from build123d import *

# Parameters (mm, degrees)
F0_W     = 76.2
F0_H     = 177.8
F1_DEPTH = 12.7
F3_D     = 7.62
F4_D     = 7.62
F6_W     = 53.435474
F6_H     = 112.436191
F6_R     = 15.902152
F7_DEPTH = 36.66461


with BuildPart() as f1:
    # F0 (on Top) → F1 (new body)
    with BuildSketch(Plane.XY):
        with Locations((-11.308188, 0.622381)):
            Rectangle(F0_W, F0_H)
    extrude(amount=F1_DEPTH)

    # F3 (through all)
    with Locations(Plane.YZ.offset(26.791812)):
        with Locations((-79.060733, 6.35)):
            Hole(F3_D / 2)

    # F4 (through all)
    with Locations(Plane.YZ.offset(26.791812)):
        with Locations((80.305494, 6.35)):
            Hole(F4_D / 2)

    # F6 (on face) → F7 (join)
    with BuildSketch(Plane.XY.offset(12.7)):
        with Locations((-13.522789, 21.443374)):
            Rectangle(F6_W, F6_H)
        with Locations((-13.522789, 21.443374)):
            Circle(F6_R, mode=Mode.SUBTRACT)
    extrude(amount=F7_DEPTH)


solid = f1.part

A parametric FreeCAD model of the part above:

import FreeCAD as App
import Part
import Sketcher
from FreeCAD import Vector
Q = App.Units.Quantity

doc = App.newDocument("Part")
params = doc.addObject("Spreadsheet::Sheet", "Params")
for row, (alias, value) in enumerate([
    ("sketch1_width", "3 in"),
    ("sketch1_height", "7 in"),
    ("pad1_length", "0.5 in"),
    ("sketch2_diameter", "0.3 in"),
    ("hole_diameter", "0.3 in"),
    ("sketch3_diameter", "0.3 in"),
    ("hole2_diameter", "0.3 in"),
    ("pad2_length", "36.66461 mm"),
], start=1):
    params.set(f"A{row}", alias)
    params.set(f"B{row}", "=" + value)
    params.setAlias(f"B{row}", alias)

body = doc.addObject("PartDesign::Body", "Body")

# Sketch on XY plane
sketch1 = doc.addObject("Sketcher::SketchObject", "Sketch")
body.addObject(sketch1)
sketch1.AttachmentSupport = (doc.XY_Plane, [""])
sketch1.MapMode = "FlatFace"
sketch1.addGeometry(Part.LineSegment(Vector(-49, 90, 0), Vector(-49, -88, 0)), False)
sketch1.addGeometry(Part.LineSegment(Vector(-49, -88, 0), Vector(27, -88, 0)), False)
sketch1.addGeometry(Part.LineSegment(Vector(27, -88, 0), Vector(27, 90, 0)), False)
sketch1.addGeometry(Part.LineSegment(Vector(27, 90, 0), Vector(-49, 90, 0)), False)
sketch1.addConstraint(Sketcher.Constraint("Coincident", 0, 2, 1, 1))
sketch1.addConstraint(Sketcher.Constraint("Coincident", 1, 2, 2, 1))
sketch1.addConstraint(Sketcher.Constraint("Coincident", 2, 2, 3, 1))
sketch1.addConstraint(Sketcher.Constraint("Coincident", 3, 2, 0, 1))
sketch1.addConstraint(Sketcher.Constraint("Vertical", 0))
sketch1.addConstraint(Sketcher.Constraint("Horizontal", 1))
sketch1.addConstraint(Sketcher.Constraint("Vertical", 2))
sketch1.addConstraint(Sketcher.Constraint("Horizontal", 3))
sketch1.addConstraint(Sketcher.Constraint("DistanceX", 1, 1, 1, 2, Q("3 in")))
sketch1.addConstraint(Sketcher.Constraint("DistanceY", 0, 2, 0, 1, Q("7 in")))
sketch1.addConstraint(Sketcher.Constraint("DistanceX", 0, 2, -1, 1, 49.408188))
sketch1.addConstraint(Sketcher.Constraint("DistanceY", 0, 2, -1, 1, 88.277619))
sketch1.setExpression("Constraints[8]", "Params.sketch1_width")
sketch1.setExpression("Constraints[9]", "Params.sketch1_height")
pad1 = doc.addObject("PartDesign::Pad", "Pad")
body.addObject(pad1)
pad1.Profile = sketch1
pad1.setExpression("Length", "Params.pad1_length")

# Sketch on YZ plane
sketch2 = doc.addObject("Sketcher::SketchObject", "Sketch001")
body.addObject(sketch2)
sketch2.AttachmentSupport = (doc.YZ_Plane, [""])
sketch2.MapMode = "FlatFace"
sketch2.AttachmentOffset = App.Placement(Vector(0, 0, 26.791812), App.Rotation())
sketch2.addGeometry(Part.Circle(Vector(-79.1, 6.3, 0), Vector(0, 0, 1), 3.8), False)
sketch2.addConstraint(Sketcher.Constraint("Diameter", 0, Q("0.3 in")))
sketch2.addConstraint(Sketcher.Constraint("DistanceY", -1, 1, 0, 3, Q("0.25 in")))
sketch2.addConstraint(Sketcher.Constraint("DistanceX", 0, 3, -1, 1, 79.060733))
sketch2.setExpression("Constraints[0]", "Params.sketch2_diameter")
doc.recompute()
hole = doc.addObject("PartDesign::Hole", "Hole")
body.addObject(hole)
hole.Profile = sketch2
hole.ThreadType = "None"
hole.setExpression("Diameter", "Params.hole_diameter")
hole.DepthType = "ThroughAll"

# Sketch on YZ plane
sketch3 = doc.addObject("Sketcher::SketchObject", "Sketch002")
body.addObject(sketch3)
sketch3.AttachmentSupport = (doc.YZ_Plane, [""])
sketch3.MapMode = "FlatFace"
sketch3.AttachmentOffset = App.Placement(Vector(0, 0, 26.791812), App.Rotation())
sketch3.addGeometry(Part.Circle(Vector(80.3, 6.3, 0), Vector(0, 0, 1), 3.8), False)
sketch3.addConstraint(Sketcher.Constraint("Diameter", 0, Q("0.3 in")))
sketch3.addConstraint(Sketcher.Constraint("DistanceY", -1, 1, 0, 3, Q("0.25 in")))
sketch3.addConstraint(Sketcher.Constraint("DistanceX", -1, 1, 0, 3, 80.305494))
sketch3.setExpression("Constraints[0]", "Params.sketch3_diameter")
doc.recompute()
hole2 = doc.addObject("PartDesign::Hole", "Hole001")
body.addObject(hole2)
hole2.Profile = sketch3
hole2.ThreadType = "None"
hole2.setExpression("Diameter", "Params.hole2_diameter")
hole2.DepthType = "ThroughAll"

# Sketch on XY plane
sketch4 = doc.addObject("Sketcher::SketchObject", "Sketch003")
body.addObject(sketch4)
sketch4.AttachmentSupport = (doc.XY_Plane, [""])
sketch4.MapMode = "FlatFace"
sketch4.AttachmentOffset = App.Placement(Vector(0, 0, 0.5 * 25.4), App.Rotation())
sketch4.addGeometry(Part.LineSegment(Vector(-40, 78, 0), Vector(-40, -35, 0)), False)
sketch4.addGeometry(Part.LineSegment(Vector(-40, -35, 0), Vector(13, -35, 0)), False)
sketch4.addGeometry(Part.LineSegment(Vector(13, -35, 0), Vector(13, 78, 0)), False)
sketch4.addGeometry(Part.LineSegment(Vector(13, 78, 0), Vector(-40, 78, 0)), False)
sketch4.addGeometry(Part.Circle(Vector(-14, 21, 0), Vector(0, 0, 1), 16), False)
sketch4.addConstraint(Sketcher.Constraint("Coincident", 0, 2, 1, 1))
sketch4.addConstraint(Sketcher.Constraint("Coincident", 1, 2, 2, 1))
sketch4.addConstraint(Sketcher.Constraint("Coincident", 2, 2, 3, 1))
sketch4.addConstraint(Sketcher.Constraint("Coincident", 3, 2, 0, 1))
sketch4.addConstraint(Sketcher.Constraint("Vertical", 0))
sketch4.addConstraint(Sketcher.Constraint("Horizontal", 1))
sketch4.addConstraint(Sketcher.Constraint("Vertical", 2))
sketch4.addConstraint(Sketcher.Constraint("Horizontal", 3))
sketch4.addConstraint(Sketcher.Constraint("Diameter", 4, 31.804304))
sketch4.addConstraint(Sketcher.Constraint("DistanceY", 0, 2, 0, 1, 112.436191))
sketch4.addConstraint(Sketcher.Constraint("DistanceX", 1, 1, 1, 2, 53.435474))
sketch4.addConstraint(Sketcher.Constraint("DistanceX", 4, 3, -1, 1, 13.522789))
sketch4.addConstraint(Sketcher.Constraint("DistanceY", 0, 2, -1, 1, 34.774721))
sketch4.addConstraint(Sketcher.Constraint("DistanceY", -1, 1, 4, 3, 21.443374))
sketch4.addConstraint(Sketcher.Constraint("DistanceX", 0, 2, -1, 1, 40.240526))
pad2 = doc.addObject("PartDesign::Pad", "Pad001")
body.addObject(pad2)
pad2.Profile = sketch4
pad2.setExpression("Length", "Params.pad2_length")

doc.recompute()
